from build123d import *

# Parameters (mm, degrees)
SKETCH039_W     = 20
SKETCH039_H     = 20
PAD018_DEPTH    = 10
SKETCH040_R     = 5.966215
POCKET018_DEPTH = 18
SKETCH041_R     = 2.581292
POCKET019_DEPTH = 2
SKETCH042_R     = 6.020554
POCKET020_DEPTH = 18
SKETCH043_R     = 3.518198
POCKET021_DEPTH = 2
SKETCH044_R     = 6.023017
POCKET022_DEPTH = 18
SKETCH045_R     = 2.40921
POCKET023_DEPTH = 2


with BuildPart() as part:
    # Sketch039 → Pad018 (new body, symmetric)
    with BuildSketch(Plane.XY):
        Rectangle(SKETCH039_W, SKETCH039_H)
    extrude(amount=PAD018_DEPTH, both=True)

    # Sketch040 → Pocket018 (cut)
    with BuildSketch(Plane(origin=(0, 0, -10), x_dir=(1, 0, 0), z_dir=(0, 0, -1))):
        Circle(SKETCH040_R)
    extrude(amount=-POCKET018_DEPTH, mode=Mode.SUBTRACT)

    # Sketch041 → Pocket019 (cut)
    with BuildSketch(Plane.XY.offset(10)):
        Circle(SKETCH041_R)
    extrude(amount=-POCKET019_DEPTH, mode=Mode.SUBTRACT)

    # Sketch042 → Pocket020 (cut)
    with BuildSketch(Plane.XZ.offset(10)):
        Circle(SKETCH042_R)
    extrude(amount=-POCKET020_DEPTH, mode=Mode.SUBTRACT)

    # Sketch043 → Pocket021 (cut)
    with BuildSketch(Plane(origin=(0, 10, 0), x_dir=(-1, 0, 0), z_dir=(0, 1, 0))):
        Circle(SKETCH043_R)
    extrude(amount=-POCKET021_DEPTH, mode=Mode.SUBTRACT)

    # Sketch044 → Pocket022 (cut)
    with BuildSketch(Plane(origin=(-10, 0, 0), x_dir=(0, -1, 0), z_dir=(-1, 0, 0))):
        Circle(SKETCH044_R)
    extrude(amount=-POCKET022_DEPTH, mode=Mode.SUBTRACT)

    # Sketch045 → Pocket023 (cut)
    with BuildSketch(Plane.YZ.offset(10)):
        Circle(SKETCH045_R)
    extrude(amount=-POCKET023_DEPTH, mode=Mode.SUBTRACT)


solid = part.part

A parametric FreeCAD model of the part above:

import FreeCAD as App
import Part
import Sketcher
from FreeCAD import Vector

doc = App.newDocument("Part")
params = doc.addObject("Spreadsheet::Sheet", "Params")
for row, (alias, value) in enumerate([
    ("sketch1_width", "20 mm"),
    ("pad1_length", "20 mm"),
    ("pocket1_length", "18 mm"),
    ("pocket2_length", "2 mm"),
    ("pocket3_length", "18 mm"),
    ("pocket4_length", "2 mm"),
    ("pocket5_length", "18 mm"),
    ("pocket6_length", "2 mm"),
], start=1):
    params.set(f"A{row}", alias)
    params.set(f"B{row}", "=" + value)
    params.setAlias(f"B{row}", alias)

body = doc.addObject("PartDesign::Body", "Body")

sketch1 = doc.addObject("Sketcher::SketchObject", "Sketch")
body.addObject(sketch1)
sketch1.AttachmentSupport = (doc.XY_Plane, [""])
sketch1.MapMode = "FlatFace"
sketch1.addGeometry(Part.LineSegment(Vector(-10, 10, 0), Vector(-10, -10, 0)), False)
sketch1.addGeometry(Part.LineSegment(Vector(-10, -10, 0), Vector(10, -10, 0)), False)
sketch1.addGeometry(Part.LineSegment(Vector(10, -10, 0), Vector(10, 10, 0)), False)
sketch1.addGeometry(Part.LineSegment(Vector(10, 10, 0), Vector(-10, 10, 0)), False)
sketch1.addConstraint(Sketcher.Constraint("Coincident", 0, 2, 1, 1))
sketch1.addConstraint(Sketcher.Constraint("Coincident", 1, 2, 2, 1))
sketch1.addConstraint(Sketcher.Constraint("Coincident", 2, 2, 3, 1))
sketch1.addConstraint(Sketcher.Constraint("Coincident", 3, 2, 0, 1))
sketch1.addConstraint(Sketcher.Constraint("Vertical", 0))
sketch1.addConstraint(Sketcher.Constraint("Horizontal", 1))
sketch1.addConstraint(Sketcher.Constraint("Vertical", 2))
sketch1.addConstraint(Sketcher.Constraint("Horizontal", 3))
sketch1.addConstraint(Sketcher.Constraint("Symmetric", 0, 2, 2, 2, -1, 1))
sketch1.addConstraint(Sketcher.Constraint("Equal", 3, 0))
sketch1.addConstraint(Sketcher.Constraint("DistanceX", 1, 1, 1, 2, 20.0))
sketch1.setExpression("Constraints[10]", "Params.sketch1_width")
pad1 = doc.addObject("PartDesign::Pad", "Pad")
body.addObject(pad1)
pad1.Profile = sketch1
pad1.setExpression("Length", "Params.pad1_length")
pad1.Midplane = True

sketch2 = doc.addObject("Sketcher::SketchObject", "Sketch001")
body.addObject(sketch2)
sketch2.AttachmentSupport = (doc.XY_Plane, [""])
sketch2.MapMode = "FlatFace"
sketch2.AttachmentOffset = App.Placement(Vector(0, 0, -10), App.Rotation())
sketch2.addGeometry(Part.Circle(Vector(0, 0, 0), Vector(0, 0, 1), 6), False)
sketch2.addConstraint(Sketcher.Constraint("Coincident", 0, 3, -1, 1))
sketch2.addConstraint(Sketcher.Constraint("Diameter", 0, 11.93243))
pocket1 = doc.addObject("PartDesign::Pocket", "Pocket")
body.addObject(pocket1)
pocket1.Profile = sketch2
pocket1.setExpression("Length", "Params.pocket1_length")
pocket1.Reversed = True

sketch3 = doc.addObject("Sketcher::SketchObject", "Sketch002")
body.addObject(sketch3)
sketch3.AttachmentSupport = (doc.XY_Plane, [""])
sketch3.MapMode = "FlatFace"
sketch3.AttachmentOffset = App.Placement(Vector(0, 0, 10), App.Rotation())
sketch3.addGeometry(Part.Circle(Vector(0, 0, 0), Vector(0, 0, 1), 2.6), False)
sketch3.addConstraint(Sketcher.Constraint("Coincident", 0, 3, -1, 1))
sketch3.addConstraint(Sketcher.Constraint("Diameter", 0, 5.162584))
pocket2 = doc.addObject("PartDesign::Pocket", "Pocket001")
body.addObject(pocket2)
pocket2.Profile = sketch3
pocket2.setExpression("Length", "Params.pocket2_length")

sketch4 = doc.addObject("Sketcher::SketchObject", "Sketch003")
body.addObject(sketch4)
sketch4.AttachmentSupport = (doc.XZ_Plane, [""])
sketch4.MapMode = "FlatFace"
sketch4.AttachmentOffset = App.Placement(Vector(0, 0, 10), App.Rotation())
sketch4.addGeometry(Part.Circle(Vector(0, 0, 0), Vector(0, 0, 1), 6), False)
sketch4.addConstraint(Sketcher.Constraint("Coincident", 0, 3, -1, 1))
sketch4.addConstraint(Sketcher.Constraint("Diameter", 0, 12.041108))
pocket3 = doc.addObject("PartDesign::Pocket", "Pocket002")
body.addObject(pocket3)
pocket3.Profile = sketch4
pocket3.setExpression("Length", "Params.pocket3_length")

sketch5 = doc.addObject("Sketcher::SketchObject", "Sketch004")
body.addObject(sketch5)
sketch5.AttachmentSupport = (doc.XZ_Plane, [""])
sketch5.MapMode = "FlatFace"
sketch5.AttachmentOffset = App.Placement(Vector(0, 0, -10), App.Rotation())
sketch5.addGeometry(Part.Circle(Vector(0, 0, 0), Vector(0, 0, 1), 3.5), False)
sketch5.addConstraint(Sketcher.Constraint("Coincident", 0, 3, -1, 1))
sketch5.addConstraint(Sketcher.Constraint("Diameter", 0, 7.036396))
pocket4 = doc.addObject("PartDesign::Pocket", "Pocket003")
body.addObject(pocket4)
pocket4.Profile = sketch5
pocket4.setExpression("Length", "Params.pocket4_length")
pocket4.Reversed = True

sketch6 = doc.addObject("Sketcher::SketchObject", "Sketch005")
body.addObject(sketch6)
sketch6.AttachmentSupport = (doc.YZ_Plane, [""])
sketch6.MapMode = "FlatFace"
sketch6.AttachmentOffset = App.Placement(Vector(0, 0, -10), App.Rotation())
sketch6.addGeometry(Part.Circle(Vector(0, 0, 0), Vector(0, 0, 1), 6), False)
sketch6.addConstraint(Sketcher.Constraint("Coincident", 0, 3, -1, 1))
sketch6.addConstraint(Sketcher.Constraint("Diameter", 0, 12.046034))
pocket5 = doc.addObject("PartDesign::Pocket", "Pocket004")
body.addObject(pocket5)
pocket5.Profile = sketch6
pocket5.setExpression("Length", "Params.pocket5_length")
pocket5.Reversed = True

sketch7 = doc.addObject("Sketcher::SketchObject", "Sketch006")
body.addObject(sketch7)
sketch7.AttachmentSupport = (doc.YZ_Plane, [""])
sketch7.MapMode = "FlatFace"
sketch7.AttachmentOffset = App.Placement(Vector(0, 0, 10), App.Rotation())
sketch7.addGeometry(Part.Circle(Vector(0, 0, 0), Vector(0, 0, 1), 2.4), False)
sketch7.addConstraint(Sketcher.Constraint("Coincident", 0, 3, -1, 1))
sketch7.addConstraint(Sketcher.Constraint("Diameter", 0, 4.81842))
pocket6 = doc.addObject("PartDesign::Pocket", "Pocket005")
body.addObject(pocket6)
pocket6.Profile = sketch7
pocket6.setExpression("Length", "Params.pocket6_length")

doc.recompute()
